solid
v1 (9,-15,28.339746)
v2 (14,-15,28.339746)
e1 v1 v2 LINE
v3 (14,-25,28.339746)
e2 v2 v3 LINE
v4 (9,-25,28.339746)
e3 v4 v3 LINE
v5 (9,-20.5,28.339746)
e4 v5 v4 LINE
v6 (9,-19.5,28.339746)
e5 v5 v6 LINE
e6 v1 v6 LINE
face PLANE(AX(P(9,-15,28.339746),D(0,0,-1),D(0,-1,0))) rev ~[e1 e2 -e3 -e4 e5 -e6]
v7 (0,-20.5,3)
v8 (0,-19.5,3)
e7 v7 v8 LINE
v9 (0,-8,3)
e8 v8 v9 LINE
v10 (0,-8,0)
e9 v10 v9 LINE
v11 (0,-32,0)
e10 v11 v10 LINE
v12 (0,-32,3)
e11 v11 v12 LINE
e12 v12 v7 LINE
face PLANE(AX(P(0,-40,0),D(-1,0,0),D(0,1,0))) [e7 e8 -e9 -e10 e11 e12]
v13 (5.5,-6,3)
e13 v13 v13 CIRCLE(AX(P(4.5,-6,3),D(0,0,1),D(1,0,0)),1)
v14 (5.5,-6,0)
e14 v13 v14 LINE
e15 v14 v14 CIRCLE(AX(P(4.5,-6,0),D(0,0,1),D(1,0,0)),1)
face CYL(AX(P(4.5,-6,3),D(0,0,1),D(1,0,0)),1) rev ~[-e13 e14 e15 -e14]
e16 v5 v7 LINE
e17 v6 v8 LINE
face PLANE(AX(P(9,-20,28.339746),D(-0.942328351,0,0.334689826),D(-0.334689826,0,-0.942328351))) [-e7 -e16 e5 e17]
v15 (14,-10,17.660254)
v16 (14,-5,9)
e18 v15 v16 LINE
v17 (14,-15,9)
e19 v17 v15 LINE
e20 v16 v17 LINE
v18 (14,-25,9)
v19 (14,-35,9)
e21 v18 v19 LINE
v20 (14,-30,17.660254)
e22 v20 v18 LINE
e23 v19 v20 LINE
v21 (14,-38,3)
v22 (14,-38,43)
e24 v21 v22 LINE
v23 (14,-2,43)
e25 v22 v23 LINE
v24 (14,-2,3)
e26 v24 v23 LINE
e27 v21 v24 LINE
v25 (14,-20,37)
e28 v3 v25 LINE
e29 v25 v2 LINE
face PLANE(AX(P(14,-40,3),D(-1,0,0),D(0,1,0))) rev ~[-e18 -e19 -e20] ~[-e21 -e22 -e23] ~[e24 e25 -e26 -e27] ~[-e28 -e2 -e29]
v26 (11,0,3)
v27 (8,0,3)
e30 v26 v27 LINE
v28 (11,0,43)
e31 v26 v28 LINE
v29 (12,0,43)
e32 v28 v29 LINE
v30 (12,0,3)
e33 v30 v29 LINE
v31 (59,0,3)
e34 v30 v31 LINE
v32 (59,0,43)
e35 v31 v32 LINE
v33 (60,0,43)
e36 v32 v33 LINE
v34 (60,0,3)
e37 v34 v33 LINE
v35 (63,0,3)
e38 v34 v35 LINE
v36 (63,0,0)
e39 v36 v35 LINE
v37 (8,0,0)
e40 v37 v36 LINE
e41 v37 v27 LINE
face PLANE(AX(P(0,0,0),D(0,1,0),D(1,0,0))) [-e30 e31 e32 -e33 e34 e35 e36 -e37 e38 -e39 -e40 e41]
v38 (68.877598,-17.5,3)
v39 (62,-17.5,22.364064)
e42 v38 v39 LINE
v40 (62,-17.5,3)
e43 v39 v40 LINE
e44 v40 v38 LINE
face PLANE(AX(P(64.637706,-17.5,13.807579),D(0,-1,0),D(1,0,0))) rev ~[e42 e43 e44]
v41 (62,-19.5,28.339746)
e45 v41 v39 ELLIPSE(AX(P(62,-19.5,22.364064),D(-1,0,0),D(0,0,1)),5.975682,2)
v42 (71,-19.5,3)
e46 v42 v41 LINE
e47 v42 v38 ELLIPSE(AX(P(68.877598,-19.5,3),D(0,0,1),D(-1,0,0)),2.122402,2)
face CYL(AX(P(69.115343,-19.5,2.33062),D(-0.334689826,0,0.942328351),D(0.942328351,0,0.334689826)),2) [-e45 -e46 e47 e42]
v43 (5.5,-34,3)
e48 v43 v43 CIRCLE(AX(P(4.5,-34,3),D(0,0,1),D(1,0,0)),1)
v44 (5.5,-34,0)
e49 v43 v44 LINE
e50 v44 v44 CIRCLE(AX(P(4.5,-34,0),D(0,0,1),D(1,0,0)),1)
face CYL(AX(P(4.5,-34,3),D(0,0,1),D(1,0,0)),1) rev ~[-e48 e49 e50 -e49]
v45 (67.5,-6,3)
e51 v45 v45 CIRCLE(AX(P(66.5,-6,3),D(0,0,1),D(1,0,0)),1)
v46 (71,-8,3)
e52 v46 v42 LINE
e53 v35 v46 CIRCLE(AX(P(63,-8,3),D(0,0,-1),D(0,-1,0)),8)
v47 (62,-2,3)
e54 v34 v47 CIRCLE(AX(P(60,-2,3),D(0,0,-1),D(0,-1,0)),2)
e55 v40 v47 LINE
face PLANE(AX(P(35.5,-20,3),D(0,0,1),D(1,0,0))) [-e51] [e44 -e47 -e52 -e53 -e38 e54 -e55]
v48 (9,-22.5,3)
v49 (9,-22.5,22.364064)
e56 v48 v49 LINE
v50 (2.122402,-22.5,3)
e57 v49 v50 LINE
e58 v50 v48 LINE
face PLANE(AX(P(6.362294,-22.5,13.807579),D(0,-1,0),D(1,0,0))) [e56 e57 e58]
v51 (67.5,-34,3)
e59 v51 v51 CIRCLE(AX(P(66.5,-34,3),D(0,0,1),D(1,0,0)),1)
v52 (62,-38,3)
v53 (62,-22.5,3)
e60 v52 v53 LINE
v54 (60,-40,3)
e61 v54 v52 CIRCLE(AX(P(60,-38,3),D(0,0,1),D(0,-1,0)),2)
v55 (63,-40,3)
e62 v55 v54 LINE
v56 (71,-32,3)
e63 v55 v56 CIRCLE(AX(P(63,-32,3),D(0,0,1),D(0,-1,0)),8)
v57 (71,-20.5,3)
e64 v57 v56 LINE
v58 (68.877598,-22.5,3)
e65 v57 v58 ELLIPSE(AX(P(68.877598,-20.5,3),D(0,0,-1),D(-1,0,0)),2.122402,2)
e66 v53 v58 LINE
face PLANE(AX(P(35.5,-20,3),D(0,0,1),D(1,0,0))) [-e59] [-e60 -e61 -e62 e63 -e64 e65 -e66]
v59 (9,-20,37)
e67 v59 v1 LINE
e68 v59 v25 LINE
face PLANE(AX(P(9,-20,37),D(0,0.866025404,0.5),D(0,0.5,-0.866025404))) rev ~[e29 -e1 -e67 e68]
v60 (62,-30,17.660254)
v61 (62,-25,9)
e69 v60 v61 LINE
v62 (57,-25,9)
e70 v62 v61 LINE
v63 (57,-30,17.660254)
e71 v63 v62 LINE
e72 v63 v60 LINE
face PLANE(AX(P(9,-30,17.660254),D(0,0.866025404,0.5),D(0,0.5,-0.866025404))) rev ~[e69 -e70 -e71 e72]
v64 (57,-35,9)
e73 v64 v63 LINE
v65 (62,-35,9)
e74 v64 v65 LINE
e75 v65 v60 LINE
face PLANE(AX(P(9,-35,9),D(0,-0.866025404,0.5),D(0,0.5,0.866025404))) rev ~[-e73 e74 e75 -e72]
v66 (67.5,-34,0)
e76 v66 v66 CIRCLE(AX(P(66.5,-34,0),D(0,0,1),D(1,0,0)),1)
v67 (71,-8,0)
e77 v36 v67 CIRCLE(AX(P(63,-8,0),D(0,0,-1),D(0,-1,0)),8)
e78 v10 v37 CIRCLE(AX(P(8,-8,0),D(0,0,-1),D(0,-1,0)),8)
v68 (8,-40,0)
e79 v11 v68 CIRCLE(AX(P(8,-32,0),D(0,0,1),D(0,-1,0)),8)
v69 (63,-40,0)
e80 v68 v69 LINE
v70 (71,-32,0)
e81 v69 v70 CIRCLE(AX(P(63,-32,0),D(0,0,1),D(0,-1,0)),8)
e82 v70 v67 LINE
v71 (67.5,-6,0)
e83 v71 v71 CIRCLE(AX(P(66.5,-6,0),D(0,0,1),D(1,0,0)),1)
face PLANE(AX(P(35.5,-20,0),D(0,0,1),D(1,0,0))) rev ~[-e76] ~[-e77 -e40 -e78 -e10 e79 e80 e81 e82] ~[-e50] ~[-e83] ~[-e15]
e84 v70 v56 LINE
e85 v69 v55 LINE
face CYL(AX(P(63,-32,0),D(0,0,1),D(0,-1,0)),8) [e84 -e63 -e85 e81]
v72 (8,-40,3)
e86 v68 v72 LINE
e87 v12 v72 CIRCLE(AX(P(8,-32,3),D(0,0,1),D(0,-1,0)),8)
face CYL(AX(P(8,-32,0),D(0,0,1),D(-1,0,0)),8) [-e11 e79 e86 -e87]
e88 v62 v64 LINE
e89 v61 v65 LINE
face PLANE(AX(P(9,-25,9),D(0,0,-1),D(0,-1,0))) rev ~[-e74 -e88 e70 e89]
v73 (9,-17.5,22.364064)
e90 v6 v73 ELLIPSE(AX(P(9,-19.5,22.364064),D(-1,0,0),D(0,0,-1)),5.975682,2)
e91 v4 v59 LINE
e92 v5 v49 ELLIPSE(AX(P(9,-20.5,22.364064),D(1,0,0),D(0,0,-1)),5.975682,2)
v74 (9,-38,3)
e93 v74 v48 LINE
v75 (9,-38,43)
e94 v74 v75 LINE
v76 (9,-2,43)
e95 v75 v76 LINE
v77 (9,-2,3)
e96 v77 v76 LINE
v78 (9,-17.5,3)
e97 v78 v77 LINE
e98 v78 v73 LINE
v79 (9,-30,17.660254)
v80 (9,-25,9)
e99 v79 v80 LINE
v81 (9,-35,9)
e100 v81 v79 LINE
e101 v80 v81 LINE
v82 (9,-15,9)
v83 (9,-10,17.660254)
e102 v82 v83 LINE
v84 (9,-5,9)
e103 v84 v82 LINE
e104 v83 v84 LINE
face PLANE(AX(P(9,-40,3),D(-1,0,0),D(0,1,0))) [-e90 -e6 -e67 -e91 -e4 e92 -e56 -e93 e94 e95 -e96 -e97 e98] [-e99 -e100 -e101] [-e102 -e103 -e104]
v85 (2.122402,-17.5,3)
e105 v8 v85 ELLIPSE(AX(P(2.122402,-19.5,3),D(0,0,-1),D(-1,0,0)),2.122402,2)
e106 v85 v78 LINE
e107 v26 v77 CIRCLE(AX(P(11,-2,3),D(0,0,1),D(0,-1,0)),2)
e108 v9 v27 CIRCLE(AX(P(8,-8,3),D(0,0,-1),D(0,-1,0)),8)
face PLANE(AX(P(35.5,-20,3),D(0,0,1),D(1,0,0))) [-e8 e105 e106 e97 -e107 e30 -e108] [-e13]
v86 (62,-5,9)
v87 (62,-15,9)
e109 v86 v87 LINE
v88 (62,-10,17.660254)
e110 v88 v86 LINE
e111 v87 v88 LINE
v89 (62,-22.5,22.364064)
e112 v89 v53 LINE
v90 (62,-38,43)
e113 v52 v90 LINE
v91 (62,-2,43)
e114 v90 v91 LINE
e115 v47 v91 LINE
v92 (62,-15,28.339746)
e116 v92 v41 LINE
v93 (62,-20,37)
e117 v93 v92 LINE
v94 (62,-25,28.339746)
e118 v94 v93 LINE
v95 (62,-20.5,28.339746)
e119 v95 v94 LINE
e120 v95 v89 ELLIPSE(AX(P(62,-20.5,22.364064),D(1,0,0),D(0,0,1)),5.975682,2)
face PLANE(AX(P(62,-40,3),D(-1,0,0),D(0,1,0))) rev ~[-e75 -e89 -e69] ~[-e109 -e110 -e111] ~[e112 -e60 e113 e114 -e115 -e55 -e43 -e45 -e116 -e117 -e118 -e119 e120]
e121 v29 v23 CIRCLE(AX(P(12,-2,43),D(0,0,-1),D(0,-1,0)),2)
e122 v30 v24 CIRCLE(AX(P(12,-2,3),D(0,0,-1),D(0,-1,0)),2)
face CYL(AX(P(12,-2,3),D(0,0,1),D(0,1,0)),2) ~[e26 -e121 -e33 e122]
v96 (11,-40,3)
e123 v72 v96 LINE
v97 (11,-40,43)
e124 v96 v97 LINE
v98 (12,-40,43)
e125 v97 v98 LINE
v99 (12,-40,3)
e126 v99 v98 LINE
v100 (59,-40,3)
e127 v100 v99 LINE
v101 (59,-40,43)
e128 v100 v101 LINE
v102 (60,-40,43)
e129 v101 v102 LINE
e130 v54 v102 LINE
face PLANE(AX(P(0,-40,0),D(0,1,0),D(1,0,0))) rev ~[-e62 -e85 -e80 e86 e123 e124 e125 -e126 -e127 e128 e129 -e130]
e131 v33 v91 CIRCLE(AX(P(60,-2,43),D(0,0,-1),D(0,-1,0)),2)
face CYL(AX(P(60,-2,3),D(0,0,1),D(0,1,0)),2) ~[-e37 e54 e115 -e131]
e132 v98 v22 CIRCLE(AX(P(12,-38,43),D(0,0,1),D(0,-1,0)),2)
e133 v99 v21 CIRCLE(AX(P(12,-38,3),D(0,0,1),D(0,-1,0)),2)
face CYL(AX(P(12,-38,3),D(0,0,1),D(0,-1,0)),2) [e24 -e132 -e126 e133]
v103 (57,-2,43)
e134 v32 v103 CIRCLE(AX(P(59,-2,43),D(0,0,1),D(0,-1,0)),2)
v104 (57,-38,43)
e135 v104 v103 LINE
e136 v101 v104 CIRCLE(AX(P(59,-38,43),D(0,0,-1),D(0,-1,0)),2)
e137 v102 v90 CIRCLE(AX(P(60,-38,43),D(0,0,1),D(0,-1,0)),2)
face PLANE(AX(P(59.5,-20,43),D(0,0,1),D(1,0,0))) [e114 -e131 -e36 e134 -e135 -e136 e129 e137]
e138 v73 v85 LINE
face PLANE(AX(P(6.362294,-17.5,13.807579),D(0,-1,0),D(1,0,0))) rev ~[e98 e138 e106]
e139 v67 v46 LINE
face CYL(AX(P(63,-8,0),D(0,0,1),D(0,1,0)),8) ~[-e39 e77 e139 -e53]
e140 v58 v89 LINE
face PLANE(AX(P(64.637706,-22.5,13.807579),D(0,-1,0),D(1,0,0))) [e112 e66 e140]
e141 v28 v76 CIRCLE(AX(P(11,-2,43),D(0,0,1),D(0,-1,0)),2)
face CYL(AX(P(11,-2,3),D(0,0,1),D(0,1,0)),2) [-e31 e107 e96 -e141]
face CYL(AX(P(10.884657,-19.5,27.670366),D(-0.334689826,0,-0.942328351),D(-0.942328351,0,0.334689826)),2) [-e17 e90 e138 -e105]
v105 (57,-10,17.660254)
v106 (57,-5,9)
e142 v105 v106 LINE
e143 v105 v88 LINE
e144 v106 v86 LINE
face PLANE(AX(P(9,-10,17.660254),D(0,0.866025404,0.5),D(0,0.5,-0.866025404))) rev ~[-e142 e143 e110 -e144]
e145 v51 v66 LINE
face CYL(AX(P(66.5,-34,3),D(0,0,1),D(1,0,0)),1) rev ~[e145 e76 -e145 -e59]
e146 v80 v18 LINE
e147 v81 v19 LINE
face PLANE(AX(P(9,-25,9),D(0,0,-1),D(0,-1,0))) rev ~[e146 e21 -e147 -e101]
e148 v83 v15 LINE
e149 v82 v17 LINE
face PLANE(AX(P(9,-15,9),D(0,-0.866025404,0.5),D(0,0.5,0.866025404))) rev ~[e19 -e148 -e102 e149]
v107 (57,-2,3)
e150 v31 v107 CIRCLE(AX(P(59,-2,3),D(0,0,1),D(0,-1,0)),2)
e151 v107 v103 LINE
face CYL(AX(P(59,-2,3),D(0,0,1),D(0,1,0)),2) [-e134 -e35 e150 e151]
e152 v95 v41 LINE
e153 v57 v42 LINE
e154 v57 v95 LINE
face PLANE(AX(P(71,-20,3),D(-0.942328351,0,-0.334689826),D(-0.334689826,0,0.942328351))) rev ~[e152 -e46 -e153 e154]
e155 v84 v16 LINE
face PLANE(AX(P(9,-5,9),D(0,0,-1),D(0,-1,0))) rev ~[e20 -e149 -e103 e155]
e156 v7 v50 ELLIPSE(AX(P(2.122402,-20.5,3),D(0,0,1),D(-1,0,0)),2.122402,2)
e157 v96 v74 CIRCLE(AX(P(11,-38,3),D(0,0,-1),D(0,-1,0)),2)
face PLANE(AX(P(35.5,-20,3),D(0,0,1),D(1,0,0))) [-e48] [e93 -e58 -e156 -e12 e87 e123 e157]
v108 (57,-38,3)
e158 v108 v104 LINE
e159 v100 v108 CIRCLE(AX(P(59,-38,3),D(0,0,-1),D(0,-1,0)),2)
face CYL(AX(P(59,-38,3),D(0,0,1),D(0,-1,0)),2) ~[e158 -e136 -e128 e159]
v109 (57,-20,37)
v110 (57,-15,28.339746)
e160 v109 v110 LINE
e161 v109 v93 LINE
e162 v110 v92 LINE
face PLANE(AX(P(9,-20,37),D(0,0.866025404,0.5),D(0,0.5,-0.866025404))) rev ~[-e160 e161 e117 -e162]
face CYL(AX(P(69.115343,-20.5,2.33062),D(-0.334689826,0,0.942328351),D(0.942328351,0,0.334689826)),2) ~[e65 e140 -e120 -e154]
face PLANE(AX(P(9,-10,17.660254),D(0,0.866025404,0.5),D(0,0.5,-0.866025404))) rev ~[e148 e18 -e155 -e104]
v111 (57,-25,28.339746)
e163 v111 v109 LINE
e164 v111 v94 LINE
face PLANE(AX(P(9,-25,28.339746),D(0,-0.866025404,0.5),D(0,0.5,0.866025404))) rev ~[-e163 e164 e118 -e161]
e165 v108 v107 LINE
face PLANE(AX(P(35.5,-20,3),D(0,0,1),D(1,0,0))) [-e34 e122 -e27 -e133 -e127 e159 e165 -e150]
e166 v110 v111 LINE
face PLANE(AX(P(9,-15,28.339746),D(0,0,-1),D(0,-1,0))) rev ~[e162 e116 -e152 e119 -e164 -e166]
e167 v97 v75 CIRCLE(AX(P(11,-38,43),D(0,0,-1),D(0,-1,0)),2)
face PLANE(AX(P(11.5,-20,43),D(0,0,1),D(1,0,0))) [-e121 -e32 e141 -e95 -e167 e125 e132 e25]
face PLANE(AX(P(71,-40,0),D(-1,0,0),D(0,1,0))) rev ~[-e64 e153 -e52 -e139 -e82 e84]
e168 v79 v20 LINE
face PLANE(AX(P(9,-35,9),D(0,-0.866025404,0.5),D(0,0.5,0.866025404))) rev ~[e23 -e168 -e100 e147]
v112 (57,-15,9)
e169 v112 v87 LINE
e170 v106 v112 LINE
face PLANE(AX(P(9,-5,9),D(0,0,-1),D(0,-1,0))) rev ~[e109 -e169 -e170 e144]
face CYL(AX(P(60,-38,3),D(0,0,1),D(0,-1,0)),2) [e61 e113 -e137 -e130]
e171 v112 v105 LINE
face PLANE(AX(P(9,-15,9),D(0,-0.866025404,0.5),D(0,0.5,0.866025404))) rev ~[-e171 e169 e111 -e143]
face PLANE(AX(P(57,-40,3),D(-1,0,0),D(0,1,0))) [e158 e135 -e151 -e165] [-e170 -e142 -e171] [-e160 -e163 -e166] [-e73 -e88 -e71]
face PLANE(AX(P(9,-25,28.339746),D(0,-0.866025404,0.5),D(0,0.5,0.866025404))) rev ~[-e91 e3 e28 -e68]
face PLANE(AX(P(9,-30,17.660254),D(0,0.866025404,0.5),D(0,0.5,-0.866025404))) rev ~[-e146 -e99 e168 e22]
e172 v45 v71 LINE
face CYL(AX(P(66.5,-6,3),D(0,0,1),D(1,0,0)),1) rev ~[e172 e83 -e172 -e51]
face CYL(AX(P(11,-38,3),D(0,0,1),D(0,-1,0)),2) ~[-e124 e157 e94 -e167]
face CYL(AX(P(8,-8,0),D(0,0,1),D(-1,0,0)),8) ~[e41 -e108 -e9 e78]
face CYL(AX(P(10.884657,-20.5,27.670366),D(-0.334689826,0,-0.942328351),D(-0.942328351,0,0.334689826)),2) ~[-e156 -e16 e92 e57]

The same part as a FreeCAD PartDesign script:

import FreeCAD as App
import Part
import Sketcher

V = App.Vector
Q = App.Units.Quantity


def edges_at(feature, points):
    """Names of the edges that pass closest to the given points."""
    edges = feature.Shape.Edges
    near = lambda p: min(range(len(edges)), key=lambda i: edges[i].distToShape(Part.Vertex(*p))[0])
    return sorted({f"Edge{near(p) + 1}" for p in points})

doc = App.newDocument("Part")
body = doc.addObject("PartDesign::Body", "Body")

sketch1 = doc.addObject("Sketcher::SketchObject", "Sketch")
body.addObject(sketch1)
sketch1.AttachmentSupport = (doc.XY_Plane, [""])
sketch1.MapMode = "FlatFace"
sketch1.addGeometry([
    Part.LineSegment(V(0, 0, 0), V(0, -40, 0)),
    Part.LineSegment(V(0, -40, 0), V(71, -40, 0)),
    Part.LineSegment(V(71, -40, 0), V(71, 0, 0)),
    Part.LineSegment(V(71, 0, 0), V(0, 0, 0)),
], False)
sketch1.addConstraint([
    Sketcher.Constraint("Coincident", 0, 2, 1, 1),
    Sketcher.Constraint("Coincident", 1, 2, 2, 1),
    Sketcher.Constraint("Coincident", 2, 2, 3, 1),
    Sketcher.Constraint("Coincident", 3, 2, 0, 1),
    Sketcher.Constraint("Vertical", 0),
    Sketcher.Constraint("Horizontal", 1),
    Sketcher.Constraint("Vertical", 2),
    Sketcher.Constraint("Horizontal", 3),
    Sketcher.Constraint("Coincident", 3, 2, -1, 1),
    Sketcher.Constraint("DistanceX", 1, 1, 1, 2, 71.0),
    Sketcher.Constraint("DistanceY", 0, 2, 0, 1, 40.0),
])
pad1 = doc.addObject("PartDesign::Pad", "Pad")
body.addObject(pad1)
pad1.Profile = sketch1
pad1.Length = 3

sketch2 = doc.addObject("Sketcher::SketchObject", "Sketch001")
body.addObject(sketch2)
sketch2.AttachmentSupport = (doc.XY_Plane, [""])
sketch2.MapMode = "FlatFace"
sketch2.AttachmentOffset = App.Placement(V(0, 0, 3), App.Rotation())
sketch2.addGeometry([
    Part.LineSegment(V(9, 0, 0), V(9, -40, 0)),
    Part.LineSegment(V(9, -40, 0), V(14, -40, 0)),
    Part.LineSegment(V(14, -40, 0), V(14, 0, 0)),
    Part.LineSegment(V(14, 0, 0), V(9, 0, 0)),
    Part.LineSegment(V(57, 0, 0), V(57, -40, 0)),
    Part.LineSegment(V(57, -40, 0), V(62, -40, 0)),
    Part.LineSegment(V(62, -40, 0), V(62, 0, 0)),
    Part.LineSegment(V(62, 0, 0), V(57, 0, 0)),
], False)
sketch2.addConstraint([
    Sketcher.Constraint("Coincident", 0, 2, 1, 1),
    Sketcher.Constraint("Coincident", 1, 2, 2, 1),
    Sketcher.Constraint("Coincident", 2, 2, 3, 1),
    Sketcher.Constraint("Coincident", 3, 2, 0, 1),
    Sketcher.Constraint("Coincident", 4, 2, 5, 1),
    Sketcher.Constraint("Coincident", 5, 2, 6, 1),
    Sketcher.Constraint("Coincident", 6, 2, 7, 1),
    Sketcher.Constraint("Coincident", 7, 2, 4, 1),
    Sketcher.Constraint("Vertical", 0),
    Sketcher.Constraint("Horizontal", 1),
    Sketcher.Constraint("Vertical", 2),
    Sketcher.Constraint("Horizontal", 3),
    Sketcher.Constraint("Vertical", 4),
    Sketcher.Constraint("Horizontal", 5),
    Sketcher.Constraint("Vertical", 6),
    Sketcher.Constraint("Horizontal", 7),
    Sketcher.Constraint("PointOnObject", 2, 2, -1),
    Sketcher.Constraint("PointOnObject", 6, 2, -1),
    Sketcher.Constraint("Horizontal", 1, 2, 4, 2),
    Sketcher.Constraint("Equal", 3, 5),
    Sketcher.Constraint("DistanceX", 1, 1, 1, 2, 5.0),
    Sketcher.Constraint("DistanceY", 0, 2, 0, 1, 40.0),
    Sketcher.Constraint("DistanceX", -1, 1, 0, 2, 9.0),
    Sketcher.Constraint("DistanceX", -1, 1, 4, 2, 57.0),
])
pad2 = doc.addObject("PartDesign::Pad", "Pad001")
body.addObject(pad2)
pad2.Profile = sketch2
pad2.Length = 40

sketch3 = doc.addObject("Sketcher::SketchObject", "Sketch002")
body.addObject(sketch3)
sketch3.AttachmentSupport = (doc.XY_Plane, [""])
sketch3.MapMode = "FlatFace"
sketch3.AttachmentOffset = App.Placement(V(0, 0, 3), App.Rotation())
sketch3.addGeometry([
    Part.Circle(V(4.5, -6, 0), V(0, 0, 1), 1),
    Part.Circle(V(4.5, -34, 0), V(0, 0, 1), 1),
    Part.Circle(V(66.5, -6, 0), V(0, 0, 1), 1),
    Part.Circle(V(66.5, -34, 0), V(0, 0, 1), 1),
], False)
sketch3.addConstraint([
    Sketcher.Constraint("Equal", 0, 1),
    Sketcher.Constraint("Equal", 1, 2),
    Sketcher.Constraint("Equal", 2, 3),
    Sketcher.Constraint("Horizontal", 0, 3, 2, 3),
    Sketcher.Constraint("Horizontal", 1, 3, 3, 3),
    Sketcher.Constraint("Vertical", 0, 3, 1, 3),
    Sketcher.Constraint("Vertical", 2, 3, 3, 3),
    Sketcher.Constraint("Diameter", 0, 2.0),
    Sketcher.Constraint("DistanceY", 0, 3, -1, 1, 6.0),
    Sketcher.Constraint("DistanceY", 1, 3, -1, 1, 34.0),
    Sketcher.Constraint("DistanceX", 0, 3, 2, 3, 62.0),
    Sketcher.Constraint("DistanceX", -1, 1, 0, 3, 4.5),
])
pocket1 = doc.addObject("PartDesign::Pocket", "Pocket")
body.addObject(pocket1)
pocket1.Profile = sketch3
pocket1.Type = "ThroughAll"

sketch4 = doc.addObject("Sketcher::SketchObject", "Sketch003")
body.addObject(sketch4)
sketch4.AttachmentSupport = (doc.YZ_Plane, [""])
sketch4.MapMode = "FlatFace"
sketch4.AttachmentOffset = App.Placement(V(0, 0, 9), App.Rotation())
sketch4.addGeometry([
    Part.LineSegment(V(-10, 18, 0), V(-5, 9, 0)),
    Part.LineSegment(V(-5, 9, 0), V(-15, 9, 0)),
    Part.LineSegment(V(-15, 9, 0), V(-10, 18, 0)),
    Part.LineSegment(V(-25, 28, 0), V(-20, 37, 0)),
    Part.LineSegment(V(-20, 37, 0), V(-15, 28, 0)),
    Part.LineSegment(V(-15, 28, 0), V(-25, 28, 0)),
    Part.LineSegment(V(-35, 9, 0), V(-30, 18, 0)),
    Part.LineSegment(V(-30, 18, 0), V(-25, 9, 0)),
    Part.LineSegment(V(-25, 9, 0), V(-35, 9, 0)),
], False)
sketch4.addConstraint([
    Sketcher.Constraint("Coincident", 0, 2, 1, 1),
    Sketcher.Constraint("Coincident", 1, 2, 2, 1),
    Sketcher.Constraint("Coincident", 2, 2, 0, 1),
    Sketcher.Constraint("Coincident", 3, 2, 4, 1),
    Sketcher.Constraint("Coincident", 4, 2, 5, 1),
    Sketcher.Constraint("Coincident", 5, 2, 3, 1),
    Sketcher.Constraint("Coincident", 6, 2, 7, 1),
    Sketcher.Constraint("Coincident", 7, 2, 8, 1),
    Sketcher.Constraint("Coincident", 8, 2, 6, 1),
    Sketcher.Constraint("Horizontal", 1),
    Sketcher.Constraint("Horizontal", 5),
    Sketcher.Constraint("Horizontal", 8),
    Sketcher.Constraint("Parallel", 2, 3),
    Sketcher.Constraint("Parallel", 0, 4),
    Sketcher.Constraint("Parallel", 3, 6),
    Sketcher.Constraint("Parallel", 4, 7),
    Sketcher.Constraint("Horizontal", 2, 2, 6, 2),
    Sketcher.Constraint("Horizontal", 1, 2, 7, 2),
    Sketcher.Constraint("Vertical", 1, 2, 4, 2),
    Sketcher.Constraint("Vertical", 5, 2, 7, 2),
    Sketcher.Constraint("Equal", 1, 5),
    Sketcher.Constraint("Equal", 0, 2),
    Sketcher.Constraint("DistanceX", 1, 2, 1, 1, 10.0),
    Sketcher.Constraint("Angle", 0, Q("-60 deg")),
    Sketcher.Constraint("DistanceX", 0, 2, -1, 1, 5.0),
    Sketcher.Constraint("DistanceY", -1, 1, 0, 2, 9.0),
    Sketcher.Constraint("DistanceY", -1, 1, 3, 2, 37.0),
])
pocket2 = doc.addObject("PartDesign::Pocket", "Pocket001")
body.addObject(pocket2)
pocket2.Profile = sketch4
pocket2.Type = "ThroughAll"
pocket2.Reversed = True

sketch5 = doc.addObject("Sketcher::SketchObject", "Sketch004")
body.addObject(sketch5)
sketch5.AttachmentSupport = (doc.XZ_Plane, [""])
sketch5.MapMode = "FlatFace"
sketch5.AttachmentOffset = App.Placement(V(0, 0, 20), App.Rotation())
sketch5.addGeometry([
    Part.LineSegment(V(62, 28, 0), V(62, 3, 0)),
    Part.LineSegment(V(62, 3, 0), V(71, 3, 0)),
    Part.LineSegment(V(71, 3, 0), V(62, 28, 0)),
    Part.LineSegment(V(0, 3, 0), V(9, 3, 0)),
    Part.LineSegment(V(9, 3, 0), V(9, 28, 0)),
    Part.LineSegment(V(9, 28, 0), V(0, 3, 0)),
], False)
sketch5.addConstraint([
    Sketcher.Constraint("Coincident", 0, 2, 1, 1),
    Sketcher.Constraint("Coincident", 1, 2, 2, 1),
    Sketcher.Constraint("Coincident", 2, 2, 0, 1),
    Sketcher.Constraint("Coincident", 3, 2, 4, 1),
    Sketcher.Constraint("Coincident", 4, 2, 5, 1),
    Sketcher.Constraint("Coincident", 5, 2, 3, 1),
    Sketcher.Constraint("Vertical", 0),
    Sketcher.Constraint("Horizontal", 1),
    Sketcher.Constraint("Horizontal", 3),
    Sketcher.Constraint("Vertical", 4),
    Sketcher.Constraint("PointOnObject", 5, 2, -2),
    Sketcher.Constraint("Horizontal", 1, 2, 3, 2),
    Sketcher.Constraint("Horizontal", 2, 2, 4, 2),
    Sketcher.Constraint("Equal", 1, 3),
    Sketcher.Constraint("DistanceX", 1, 1, 1, 2, 9.0),
    Sketcher.Constraint("DistanceX", -1, 1, 0, 2, 62.0),
    Sketcher.Constraint("DistanceY", -1, 1, 0, 2, 3.0),
    Sketcher.Constraint("Distance", 2, 26.890569),
])
pad3 = doc.addObject("PartDesign::Pad", "Pad002")
body.addObject(pad3)
pad3.Profile = sketch5
pad3.Length = 5
pad3.Midplane = True
doc.recompute()

fillet = doc.addObject("PartDesign::Fillet", "Fillet")
body.addObject(fillet)
fillet.Base = (pad3, edges_at(pad3, [
    (71, 0, 1.5),
    (0, 0, 1.5),
    (71, -40, 1.5),
    (0, -40, 1.5),
]))
fillet.Radius = 8
doc.recompute()

fillet2 = doc.addObject("PartDesign::Fillet", "Fillet001")
body.addObject(fillet2)
fillet2.Base = (fillet, edges_at(fillet, [
    (9, -40, 23),
    (9, 0, 23),
    (62, -40, 23),
    (62, 0, 23),
    (4.5, -17.5, 15.67),
    (4.5, -22.5, 15.67),
    (66.5, -17.5, 15.67),
    (66.5, -22.5, 15.67),
    (57, 0, 23),
    (14, 0, 23),
    (57, -40, 23),
    (14, -40, 23),
]))
fillet2.Radius = 2

doc.recompute()
